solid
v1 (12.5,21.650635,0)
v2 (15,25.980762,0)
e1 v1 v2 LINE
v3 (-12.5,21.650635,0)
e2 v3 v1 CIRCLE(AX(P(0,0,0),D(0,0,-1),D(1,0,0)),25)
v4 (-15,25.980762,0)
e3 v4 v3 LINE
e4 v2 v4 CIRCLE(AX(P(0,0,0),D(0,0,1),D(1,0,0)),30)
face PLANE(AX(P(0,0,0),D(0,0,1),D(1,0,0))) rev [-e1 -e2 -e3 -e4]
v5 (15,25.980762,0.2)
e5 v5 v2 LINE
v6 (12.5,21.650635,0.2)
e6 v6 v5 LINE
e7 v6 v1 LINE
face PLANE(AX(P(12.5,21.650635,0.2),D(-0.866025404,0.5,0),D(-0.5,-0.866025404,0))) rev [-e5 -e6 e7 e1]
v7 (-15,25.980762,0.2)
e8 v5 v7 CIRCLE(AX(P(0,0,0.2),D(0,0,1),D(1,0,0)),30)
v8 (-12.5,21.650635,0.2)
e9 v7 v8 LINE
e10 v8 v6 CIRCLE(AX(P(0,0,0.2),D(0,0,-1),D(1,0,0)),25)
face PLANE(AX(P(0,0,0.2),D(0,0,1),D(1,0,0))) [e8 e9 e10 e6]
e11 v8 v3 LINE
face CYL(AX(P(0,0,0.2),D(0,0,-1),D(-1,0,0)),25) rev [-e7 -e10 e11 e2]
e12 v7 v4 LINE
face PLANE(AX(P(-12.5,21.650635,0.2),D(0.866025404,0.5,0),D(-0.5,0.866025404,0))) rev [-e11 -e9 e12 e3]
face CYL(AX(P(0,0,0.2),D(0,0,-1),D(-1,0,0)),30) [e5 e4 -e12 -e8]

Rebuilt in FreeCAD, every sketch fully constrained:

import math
import FreeCAD as App
import Part
import Sketcher
from FreeCAD import Vector
Q = App.Units.Quantity

doc = App.newDocument("Part")
params = doc.addObject("Spreadsheet::Sheet", "Params")
for row, (alias, value) in enumerate([
    ("sketch1_radius", "25 mm"),
    ("sketch1_radius2", "30 mm"),
    ("pad1_length", "0.2 mm"),
], start=1):
    params.set(f"A{row}", alias)
    params.set(f"B{row}", "=" + value)
    params.setAlias(f"B{row}", alias)

body = doc.addObject("PartDesign::Body", "Body")

# Sketch on XY plane
sketch1 = body.newObject("Sketcher::SketchObject", "Sketch")
sketch1.AttachmentSupport = (doc.getObject("XY_Plane"), [""])
sketch1.MapMode = "FlatFace"
sketch1.addGeometry([
    Part.LineSegment(Vector(-15, 26, 0), Vector(-12, 22, 0)),
    Part.ArcOfCircle(Part.Circle(Vector(0, 0, 0), Vector(0, 0, 1), 25), math.radians(60), math.radians(120)),
    Part.LineSegment(Vector(12, 22, 0), Vector(15, 26, 0)),
    Part.ArcOfCircle(Part.Circle(Vector(0, 0, 0), Vector(0, 0, 1), 30), math.radians(60), math.radians(120)),
], False)
sketch1.addConstraint([
    Sketcher.Constraint("Coincident", 0, 2, 1, 2),
    Sketcher.Constraint("Coincident", 1, 1, 2, 1),
    Sketcher.Constraint("Coincident", 2, 2, 3, 1),
    Sketcher.Constraint("Coincident", 3, 2, 0, 1),
    Sketcher.Constraint("Coincident", 1, 3, -1, 1),
    Sketcher.Constraint("Coincident", 3, 3, -1, 1),
    Sketcher.Constraint("Horizontal", 0, 2, 1, 1),
    Sketcher.Constraint("Horizontal", 2, 2, 3, 2),
    Sketcher.Constraint("Radius", 1, Q("25 mm")),
    Sketcher.Constraint("Radius", 3, Q("30 mm")),
    Sketcher.Constraint("Angle", 0, Q("-60 deg")),
    Sketcher.Constraint("DistanceX", -1, 1, 2, 2, Q("15 mm")),
])
sketch1.setExpression("Constraints[8]", "Params.sketch1_radius")
sketch1.setExpression("Constraints[9]", "Params.sketch1_radius2")
pad1 = body.newObject("PartDesign::Pad", "Pad")
pad1.Profile = sketch1
pad1.setExpression("Length", "Params.pad1_length")

doc.recompute()
